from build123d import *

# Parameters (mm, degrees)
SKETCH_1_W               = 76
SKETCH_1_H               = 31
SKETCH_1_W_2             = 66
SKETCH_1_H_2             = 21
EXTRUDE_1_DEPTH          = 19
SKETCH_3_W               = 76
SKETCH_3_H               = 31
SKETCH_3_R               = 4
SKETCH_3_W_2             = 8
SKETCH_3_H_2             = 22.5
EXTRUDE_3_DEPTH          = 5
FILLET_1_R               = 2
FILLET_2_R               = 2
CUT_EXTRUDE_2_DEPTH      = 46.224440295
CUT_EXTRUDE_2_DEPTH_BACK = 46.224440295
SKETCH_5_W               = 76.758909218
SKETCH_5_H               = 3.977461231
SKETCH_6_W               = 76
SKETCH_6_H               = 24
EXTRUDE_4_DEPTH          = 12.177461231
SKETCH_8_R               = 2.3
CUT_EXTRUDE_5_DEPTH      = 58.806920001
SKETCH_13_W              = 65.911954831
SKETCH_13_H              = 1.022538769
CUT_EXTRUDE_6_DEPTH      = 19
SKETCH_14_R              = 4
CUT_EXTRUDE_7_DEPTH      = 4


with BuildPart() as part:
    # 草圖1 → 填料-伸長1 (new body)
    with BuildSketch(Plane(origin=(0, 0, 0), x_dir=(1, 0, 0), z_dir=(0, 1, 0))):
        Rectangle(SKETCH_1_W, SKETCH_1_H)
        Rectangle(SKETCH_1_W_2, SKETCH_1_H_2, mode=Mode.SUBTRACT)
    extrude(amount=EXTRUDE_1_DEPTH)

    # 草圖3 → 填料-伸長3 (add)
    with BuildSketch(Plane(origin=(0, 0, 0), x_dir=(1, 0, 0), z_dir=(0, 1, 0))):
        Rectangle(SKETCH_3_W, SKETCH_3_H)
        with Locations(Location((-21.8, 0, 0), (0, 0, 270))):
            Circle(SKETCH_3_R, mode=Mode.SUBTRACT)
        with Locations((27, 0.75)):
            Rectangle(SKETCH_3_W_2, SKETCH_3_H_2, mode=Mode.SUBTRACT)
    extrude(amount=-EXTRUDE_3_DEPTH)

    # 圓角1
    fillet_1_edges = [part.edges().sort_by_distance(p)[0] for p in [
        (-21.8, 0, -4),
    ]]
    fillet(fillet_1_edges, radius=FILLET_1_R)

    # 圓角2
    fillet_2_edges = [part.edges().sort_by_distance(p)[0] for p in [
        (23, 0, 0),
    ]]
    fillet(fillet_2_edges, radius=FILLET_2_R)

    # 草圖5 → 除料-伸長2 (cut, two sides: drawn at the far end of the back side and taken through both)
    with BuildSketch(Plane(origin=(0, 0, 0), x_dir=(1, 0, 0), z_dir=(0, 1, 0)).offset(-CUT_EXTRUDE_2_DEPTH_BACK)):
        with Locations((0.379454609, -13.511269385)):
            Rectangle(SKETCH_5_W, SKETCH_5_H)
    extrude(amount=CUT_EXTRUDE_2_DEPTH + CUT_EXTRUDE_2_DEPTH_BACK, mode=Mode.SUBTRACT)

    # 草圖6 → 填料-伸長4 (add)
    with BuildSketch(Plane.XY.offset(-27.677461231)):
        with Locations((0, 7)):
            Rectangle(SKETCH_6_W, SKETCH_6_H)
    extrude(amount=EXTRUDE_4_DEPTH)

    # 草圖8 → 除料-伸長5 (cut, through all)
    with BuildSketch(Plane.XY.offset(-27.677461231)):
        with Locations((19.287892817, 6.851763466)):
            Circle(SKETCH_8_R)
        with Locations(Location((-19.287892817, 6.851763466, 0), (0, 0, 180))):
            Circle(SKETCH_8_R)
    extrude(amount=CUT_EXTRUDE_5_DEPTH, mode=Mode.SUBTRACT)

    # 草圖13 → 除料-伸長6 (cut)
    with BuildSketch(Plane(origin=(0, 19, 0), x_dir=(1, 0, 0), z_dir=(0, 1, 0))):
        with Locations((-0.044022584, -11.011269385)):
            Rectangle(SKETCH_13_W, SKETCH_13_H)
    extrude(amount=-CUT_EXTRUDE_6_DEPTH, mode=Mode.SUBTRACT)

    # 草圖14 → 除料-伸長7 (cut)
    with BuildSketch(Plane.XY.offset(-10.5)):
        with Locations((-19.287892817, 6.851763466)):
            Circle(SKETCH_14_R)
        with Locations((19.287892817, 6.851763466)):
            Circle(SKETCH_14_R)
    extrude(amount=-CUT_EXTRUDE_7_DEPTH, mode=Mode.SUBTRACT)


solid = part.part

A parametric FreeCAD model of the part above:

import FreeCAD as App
import Part
import Sketcher
from FreeCAD import Vector
Q = App.Units.Quantity


def edges_at(feature, points):
    """Names of the edges that pass closest to the given points."""
    edges = feature.Shape.Edges
    near = lambda p: min(range(len(edges)), key=lambda i: edges[i].distToShape(Part.Vertex(*p))[0])
    return sorted({f"Edge{near(p) + 1}" for p in points})

doc = App.newDocument("Part")
params = doc.addObject("Spreadsheet::Sheet", "Params")
for row, (alias, value) in enumerate([
    ("sketch1_width", "76 mm"),
    ("sketch1_width2", "66 mm"),
    ("sketch1_height", "31 mm"),
    ("sketch1_height2", "21 mm"),
    ("pad1_length", "19 mm"),
    ("sketch2_diameter", "8 mm"),
    ("sketch2_width", "76 mm"),
    ("sketch2_width2", "8 mm"),
    ("sketch2_height", "31 mm"),
    ("sketch2_height2", "22.5 mm"),
    ("pad2_length", "5 mm"),
    ("fillet_radius", "2 mm"),
    ("fillet2_radius", "2 mm"),
    ("sketch4_width", "76 mm"),
    ("sketch4_height", "24 mm"),
    ("pad3_length", "12.177461 mm"),
    ("sketch5_diameter", "4.6 mm"),
    ("pocket3_length", "19 mm"),
    ("sketch7_diameter", "8 mm"),
    ("pocket4_length", "4 mm"),
], start=1):
    params.set(f"A{row}", alias)
    params.set(f"B{row}", "=" + value)
    params.setAlias(f"B{row}", alias)

body = doc.addObject("PartDesign::Body", "Body")

# Sketch on XZ plane
sketch1 = body.newObject("Sketcher::SketchObject", "Sketch")
sketch1.AttachmentSupport = (doc.getObject("XZ_Plane"), [""])
sketch1.MapMode = "FlatFace"
sketch1.addGeometry([
    Part.LineSegment(Vector(-38, -16, 0), Vector(-38, 16, 0)),  # 0
    Part.LineSegment(Vector(-38, 16, 0), Vector(38, 16, 0)),  # 1
    Part.LineSegment(Vector(38, 16, 0), Vector(38, -16, 0)),  # 2
    Part.LineSegment(Vector(38, -16, 0), Vector(-38, -16, 0)),  # 3
    Part.LineSegment(Vector(33, 10, 0), Vector(-33, 10, 0)),  # 4
    Part.LineSegment(Vector(-33, 10, 0), Vector(-33, -10, 0)),  # 5
    Part.LineSegment(Vector(-33, -10, 0), Vector(33, -10, 0)),  # 6
    Part.LineSegment(Vector(33, -10, 0), Vector(33, 10, 0)),  # 7
], False)
sketch1.addConstraint([
    Sketcher.Constraint("Coincident", 0, 2, 1, 1),
    Sketcher.Constraint("Coincident", 1, 2, 2, 1),
    Sketcher.Constraint("Coincident", 2, 2, 3, 1),
    Sketcher.Constraint("Coincident", 3, 2, 0, 1),
    Sketcher.Constraint("Coincident", 4, 2, 5, 1),
    Sketcher.Constraint("Coincident", 5, 2, 6, 1),
    Sketcher.Constraint("Coincident", 6, 2, 7, 1),
    Sketcher.Constraint("Coincident", 7, 2, 4, 1),
    Sketcher.Constraint("Vertical", 0),
    Sketcher.Constraint("Horizontal", 1),
    Sketcher.Constraint("Vertical", 2),
    Sketcher.Constraint("Horizontal", 3),
    Sketcher.Constraint("Horizontal", 4),
    Sketcher.Constraint("Vertical", 5),
    Sketcher.Constraint("Horizontal", 6),
    Sketcher.Constraint("Vertical", 7),
    Sketcher.Constraint("Symmetric", 0, 2, 2, 2, -1, 1),
    Sketcher.Constraint("Symmetric", 4, 2, 6, 2, -1, 1),
    Sketcher.Constraint("DistanceX", 1, 1, 1, 2, Q("76 mm")),
    Sketcher.Constraint("DistanceX", 4, 2, 4, 1, Q("66 mm")),
    Sketcher.Constraint("DistanceY", 0, 1, 0, 2, Q("31 mm")),
    Sketcher.Constraint("DistanceY", 5, 2, 5, 1, Q("21 mm")),
])
sketch1.setExpression("Constraints[18]", "Params.sketch1_width")
sketch1.setExpression("Constraints[19]", "Params.sketch1_width2")
sketch1.setExpression("Constraints[20]", "Params.sketch1_height")
sketch1.setExpression("Constraints[21]", "Params.sketch1_height2")
pad1 = body.newObject("PartDesign::Pad", "Pad")
pad1.Profile = sketch1
pad1.setExpression("Length", "Params.pad1_length")
pad1.Reversed = True

# Sketch on XZ plane
sketch2 = body.newObject("Sketcher::SketchObject", "Sketch001")
sketch2.AttachmentSupport = (doc.getObject("XZ_Plane"), [""])
sketch2.MapMode = "FlatFace"
sketch2.addGeometry([
    Part.LineSegment(Vector(-38, -15.5, 0), Vector(-38, 15.5, 0)),  # 0
    Part.LineSegment(Vector(-38, 15.5, 0), Vector(38, 15.5, 0)),  # 1
    Part.LineSegment(Vector(38, 15.5, 0), Vector(38, -15.5, 0)),  # 2
    Part.LineSegment(Vector(38, -15.5, 0), Vector(-38, -15.5, 0)),  # 3
    Part.Circle(Vector(-21.8, 0, 0), Vector(0, 0, 1), 4),  # 4
    Part.LineSegment(Vector(31, 10.5, 0), Vector(23, 10.5, 0)),  # 5
    Part.LineSegment(Vector(23, 10.5, 0), Vector(23, -12, 0)),  # 6
    Part.LineSegment(Vector(23, -12, 0), Vector(31, -12, 0)),  # 7
    Part.LineSegment(Vector(31, -12, 0), Vector(31, 10.5, 0)),  # 8
], False)
sketch2.addConstraint([
    Sketcher.Constraint("Coincident", 0, 2, 1, 1),
    Sketcher.Constraint("Coincident", 1, 2, 2, 1),
    Sketcher.Constraint("Coincident", 2, 2, 3, 1),
    Sketcher.Constraint("Coincident", 3, 2, 0, 1),
    Sketcher.Constraint("Coincident", 5, 2, 6, 1),
    Sketcher.Constraint("Coincident", 6, 2, 7, 1),
    Sketcher.Constraint("Coincident", 7, 2, 8, 1),
    Sketcher.Constraint("Coincident", 8, 2, 5, 1),
    Sketcher.Constraint("Vertical", 0),
    Sketcher.Constraint("Horizontal", 1),
    Sketcher.Constraint("Vertical", 2),
    Sketcher.Constraint("Horizontal", 3),
    Sketcher.Constraint("Horizontal", 5),
    Sketcher.Constraint("Vertical", 6),
    Sketcher.Constraint("Horizontal", 7),
    Sketcher.Constraint("Vertical", 8),
    Sketcher.Constraint("Symmetric", 0, 2, 2, 2, -1, 1),
    Sketcher.Constraint("PointOnObject", 4, 3, -1),
    Sketcher.Constraint("Diameter", 4, Q("8 mm")),
    Sketcher.Constraint("DistanceX", 1, 1, 1, 2, Q("76 mm")),
    Sketcher.Constraint("DistanceX", 5, 2, 5, 1, Q("8 mm")),
    Sketcher.Constraint("DistanceY", 0, 1, 0, 2, Q("31 mm")),
    Sketcher.Constraint("DistanceY", 6, 2, 6, 1, Q("22.5 mm")),
    Sketcher.Constraint("DistanceX", -1, 1, 5, 2, Q("23 mm")),
    Sketcher.Constraint("DistanceY", 6, 2, -1, 1, Q("12 mm")),
    Sketcher.Constraint("DistanceX", 4, 3, -1, 1, Q("21.8 mm")),
])
sketch2.setExpression("Constraints[18]", "Params.sketch2_diameter")
sketch2.setExpression("Constraints[19]", "Params.sketch2_width")
sketch2.setExpression("Constraints[20]", "Params.sketch2_width2")
sketch2.setExpression("Constraints[21]", "Params.sketch2_height")
sketch2.setExpression("Constraints[22]", "Params.sketch2_height2")
pad2 = body.newObject("PartDesign::Pad", "Pad001")
pad2.Profile = sketch2
pad2.setExpression("Length", "Params.pad2_length")
doc.recompute()

fillet = body.newObject("PartDesign::Fillet", "Fillet")
fillet.Base = (pad2, edges_at(pad2, [(-21.8, 0, -4)]))
fillet.setExpression("Radius", "Params.fillet_radius")
doc.recompute()

fillet2 = body.newObject("PartDesign::Fillet", "Fillet001")
fillet2.Base = (fillet, edges_at(fillet, [(23, 0, 0)]))
fillet2.setExpression("Radius", "Params.fillet2_radius")

# Sketch on XZ plane
sketch3 = body.newObject("Sketcher::SketchObject", "Sketch002")
sketch3.AttachmentSupport = (doc.getObject("XZ_Plane"), [""])
sketch3.MapMode = "FlatFace"
sketch3.addGeometry([
    Part.LineSegment(Vector(-38, 11.5, 0), Vector(-38, 15.5, 0)),
    Part.LineSegment(Vector(-38, 15.5, 0), Vector(38.8, 15.5, 0)),
    Part.LineSegment(Vector(38.8, 15.5, 0), Vector(38.8, 11.5, 0)),
    Part.LineSegment(Vector(38.8, 11.5, 0), Vector(-38, 11.5, 0)),
], False)
sketch3.addConstraint([
    Sketcher.Constraint("Coincident", 0, 2, 1, 1),
    Sketcher.Constraint("Coincident", 1, 2, 2, 1),
    Sketcher.Constraint("Coincident", 2, 2, 3, 1),
    Sketcher.Constraint("Coincident", 3, 2, 0, 1),
    Sketcher.Constraint("Vertical", 0),
    Sketcher.Constraint("Horizontal", 1),
    Sketcher.Constraint("Vertical", 2),
    Sketcher.Constraint("Horizontal", 3),
    Sketcher.Constraint("DistanceX", 0, 2, -1, 1, Q("38 mm")),
    Sketcher.Constraint("DistanceY", -1, 1, 0, 2, Q("15.5 mm")),
    Sketcher.Constraint("DistanceX", 1, 1, 1, 2, Q("76.758909 mm")),
    Sketcher.Constraint("DistanceY", 0, 1, 0, 2, Q("3.977461 mm")),
])
pocket1 = body.newObject("PartDesign::Pocket", "Pocket")
pocket1.Profile = sketch3
pocket1.Type = "ThroughAll"
pocket1.Midplane = True

# Sketch on XY plane
sketch4 = body.newObject("Sketcher::SketchObject", "Sketch003")
sketch4.AttachmentSupport = (doc.getObject("XY_Plane"), [""])
sketch4.MapMode = "FlatFace"
sketch4.AttachmentOffset = App.Placement(Vector(0, 0, -27.677461), App.Rotation())
sketch4.addGeometry([
    Part.LineSegment(Vector(-38, 19, 0), Vector(-38, -5, 0)),
    Part.LineSegment(Vector(-38, -5, 0), Vector(38, -5, 0)),
    Part.LineSegment(Vector(38, -5, 0), Vector(38, 19, 0)),
    Part.LineSegment(Vector(38, 19, 0), Vector(-38, 19, 0)),
], False)
sketch4.addConstraint([
    Sketcher.Constraint("Coincident", 0, 2, 1, 1),
    Sketcher.Constraint("Coincident", 1, 2, 2, 1),
    Sketcher.Constraint("Coincident", 2, 2, 3, 1),
    Sketcher.Constraint("Coincident", 3, 2, 0, 1),
    Sketcher.Constraint("Vertical", 0),
    Sketcher.Constraint("Horizontal", 1),
    Sketcher.Constraint("Vertical", 2),
    Sketcher.Constraint("Horizontal", 3),
    Sketcher.Constraint("DistanceX", 1, 1, 1, 2, Q("76 mm")),
    Sketcher.Constraint("DistanceY", 0, 2, 0, 1, Q("24 mm")),
    Sketcher.Constraint("DistanceX", 0, 2, -1, 1, Q("38 mm")),
    Sketcher.Constraint("DistanceY", 0, 2, -1, 1, Q("5 mm")),
])
sketch4.setExpression("Constraints[8]", "Params.sketch4_width")
sketch4.setExpression("Constraints[9]", "Params.sketch4_height")
pad3 = body.newObject("PartDesign::Pad", "Pad002")
pad3.Profile = sketch4
pad3.setExpression("Length", "Params.pad3_length")

# Sketch on XY plane
sketch5 = body.newObject("Sketcher::SketchObject", "Sketch004")
sketch5.AttachmentSupport = (doc.getObject("XY_Plane"), [""])
sketch5.MapMode = "FlatFace"
sketch5.AttachmentOffset = App.Placement(Vector(0, 0, -27.677461), App.Rotation())
sketch5.addGeometry([
    Part.Circle(Vector(19.3, 6.9, 0), Vector(0, 0, 1), 2.3),
    Part.Circle(Vector(-19.3, 6.9, 0), Vector(0, 0, 1), 2.3),
], False)
sketch5.addConstraint([
    Sketcher.Constraint("Equal", 0, 1),
    Sketcher.Constraint("Symmetric", 0, 3, 1, 3, -2),
    Sketcher.Constraint("Diameter", 0, Q("4.6 mm")),
    Sketcher.Constraint("DistanceX", -1, 1, 0, 3, Q("19.287893 mm")),
    Sketcher.Constraint("DistanceY", -1, 1, 0, 3, Q("6.851763 mm")),
])
sketch5.setExpression("Constraints[2]", "Params.sketch5_diameter")
pocket2 = body.newObject("PartDesign::Pocket", "Pocket001")
pocket2.Profile = sketch5
pocket2.Type = "ThroughAll"
pocket2.Reversed = True

# Sketch on XZ plane
sketch6 = body.newObject("Sketcher::SketchObject", "Sketch005")
sketch6.AttachmentSupport = (doc.getObject("XZ_Plane"), [""])
sketch6.MapMode = "FlatFace"
sketch6.AttachmentOffset = App.Placement(Vector(0, 0, -19), App.Rotation())
sketch6.addGeometry([
    Part.LineSegment(Vector(-33, 10.5, 0), Vector(-33, 11.5, 0)),
    Part.LineSegment(Vector(-33, 11.5, 0), Vector(32.9, 11.5, 0)),
    Part.LineSegment(Vector(32.9, 11.5, 0), Vector(32.9, 10.5, 0)),
    Part.LineSegment(Vector(32.9, 10.5, 0), Vector(-33, 10.5, 0)),
], False)
sketch6.addConstraint([
    Sketcher.Constraint("Coincident", 0, 2, 1, 1),
    Sketcher.Constraint("Coincident", 1, 2, 2, 1),
    Sketcher.Constraint("Coincident", 2, 2, 3, 1),
    Sketcher.Constraint("Coincident", 3, 2, 0, 1),
    Sketcher.Constraint("Vertical", 0),
    Sketcher.Constraint("Horizontal", 1),
    Sketcher.Constraint("Vertical", 2),
    Sketcher.Constraint("Horizontal", 3),
    Sketcher.Constraint("DistanceX", 0, 2, -1, 1, Q("33 mm")),
    Sketcher.Constraint("DistanceY", -1, 1, 2, 2, Q("10.5 mm")),
    Sketcher.Constraint("DistanceY", 0, 1, 0, 2, Q("1.022539 mm")),
    Sketcher.Constraint("DistanceX", 1, 1, 1, 2, Q("65.911955 mm")),
])
pocket3 = body.newObject("PartDesign::Pocket", "Pocket002")
pocket3.Profile = sketch6
pocket3.setExpression("Length", "Params.pocket3_length")
pocket3.Reversed = True

# Sketch on XY plane
sketch7 = body.newObject("Sketcher::SketchObject", "Sketch006")
sketch7.AttachmentSupport = (doc.getObject("XY_Plane"), [""])
sketch7.MapMode = "FlatFace"
sketch7.AttachmentOffset = App.Placement(Vector(0, 0, -10.5), App.Rotation())
sketch7.addGeometry([
    Part.Circle(Vector(-19.3, 6.9, 0), Vector(0, 0, 1), 4),
    Part.Circle(Vector(19.3, 6.9, 0), Vector(0, 0, 1), 4),
], False)
sketch7.addConstraint([
    Sketcher.Constraint("Equal", 0, 1),
    Sketcher.Constraint("Symmetric", 0, 3, 1, 3, -2),
    Sketcher.Constraint("Diameter", 0, Q("8 mm")),
    Sketcher.Constraint("DistanceX", 0, 3, -1, 1, Q("19.287893 mm")),
    Sketcher.Constraint("DistanceY", -1, 1, 0, 3, Q("6.851763 mm")),
])
sketch7.setExpression("Constraints[2]", "Params.sketch7_diameter")
pocket4 = body.newObject("PartDesign::Pocket", "Pocket003")
pocket4.Profile = sketch7
pocket4.setExpression("Length", "Params.pocket4_length")

doc.recompute()
